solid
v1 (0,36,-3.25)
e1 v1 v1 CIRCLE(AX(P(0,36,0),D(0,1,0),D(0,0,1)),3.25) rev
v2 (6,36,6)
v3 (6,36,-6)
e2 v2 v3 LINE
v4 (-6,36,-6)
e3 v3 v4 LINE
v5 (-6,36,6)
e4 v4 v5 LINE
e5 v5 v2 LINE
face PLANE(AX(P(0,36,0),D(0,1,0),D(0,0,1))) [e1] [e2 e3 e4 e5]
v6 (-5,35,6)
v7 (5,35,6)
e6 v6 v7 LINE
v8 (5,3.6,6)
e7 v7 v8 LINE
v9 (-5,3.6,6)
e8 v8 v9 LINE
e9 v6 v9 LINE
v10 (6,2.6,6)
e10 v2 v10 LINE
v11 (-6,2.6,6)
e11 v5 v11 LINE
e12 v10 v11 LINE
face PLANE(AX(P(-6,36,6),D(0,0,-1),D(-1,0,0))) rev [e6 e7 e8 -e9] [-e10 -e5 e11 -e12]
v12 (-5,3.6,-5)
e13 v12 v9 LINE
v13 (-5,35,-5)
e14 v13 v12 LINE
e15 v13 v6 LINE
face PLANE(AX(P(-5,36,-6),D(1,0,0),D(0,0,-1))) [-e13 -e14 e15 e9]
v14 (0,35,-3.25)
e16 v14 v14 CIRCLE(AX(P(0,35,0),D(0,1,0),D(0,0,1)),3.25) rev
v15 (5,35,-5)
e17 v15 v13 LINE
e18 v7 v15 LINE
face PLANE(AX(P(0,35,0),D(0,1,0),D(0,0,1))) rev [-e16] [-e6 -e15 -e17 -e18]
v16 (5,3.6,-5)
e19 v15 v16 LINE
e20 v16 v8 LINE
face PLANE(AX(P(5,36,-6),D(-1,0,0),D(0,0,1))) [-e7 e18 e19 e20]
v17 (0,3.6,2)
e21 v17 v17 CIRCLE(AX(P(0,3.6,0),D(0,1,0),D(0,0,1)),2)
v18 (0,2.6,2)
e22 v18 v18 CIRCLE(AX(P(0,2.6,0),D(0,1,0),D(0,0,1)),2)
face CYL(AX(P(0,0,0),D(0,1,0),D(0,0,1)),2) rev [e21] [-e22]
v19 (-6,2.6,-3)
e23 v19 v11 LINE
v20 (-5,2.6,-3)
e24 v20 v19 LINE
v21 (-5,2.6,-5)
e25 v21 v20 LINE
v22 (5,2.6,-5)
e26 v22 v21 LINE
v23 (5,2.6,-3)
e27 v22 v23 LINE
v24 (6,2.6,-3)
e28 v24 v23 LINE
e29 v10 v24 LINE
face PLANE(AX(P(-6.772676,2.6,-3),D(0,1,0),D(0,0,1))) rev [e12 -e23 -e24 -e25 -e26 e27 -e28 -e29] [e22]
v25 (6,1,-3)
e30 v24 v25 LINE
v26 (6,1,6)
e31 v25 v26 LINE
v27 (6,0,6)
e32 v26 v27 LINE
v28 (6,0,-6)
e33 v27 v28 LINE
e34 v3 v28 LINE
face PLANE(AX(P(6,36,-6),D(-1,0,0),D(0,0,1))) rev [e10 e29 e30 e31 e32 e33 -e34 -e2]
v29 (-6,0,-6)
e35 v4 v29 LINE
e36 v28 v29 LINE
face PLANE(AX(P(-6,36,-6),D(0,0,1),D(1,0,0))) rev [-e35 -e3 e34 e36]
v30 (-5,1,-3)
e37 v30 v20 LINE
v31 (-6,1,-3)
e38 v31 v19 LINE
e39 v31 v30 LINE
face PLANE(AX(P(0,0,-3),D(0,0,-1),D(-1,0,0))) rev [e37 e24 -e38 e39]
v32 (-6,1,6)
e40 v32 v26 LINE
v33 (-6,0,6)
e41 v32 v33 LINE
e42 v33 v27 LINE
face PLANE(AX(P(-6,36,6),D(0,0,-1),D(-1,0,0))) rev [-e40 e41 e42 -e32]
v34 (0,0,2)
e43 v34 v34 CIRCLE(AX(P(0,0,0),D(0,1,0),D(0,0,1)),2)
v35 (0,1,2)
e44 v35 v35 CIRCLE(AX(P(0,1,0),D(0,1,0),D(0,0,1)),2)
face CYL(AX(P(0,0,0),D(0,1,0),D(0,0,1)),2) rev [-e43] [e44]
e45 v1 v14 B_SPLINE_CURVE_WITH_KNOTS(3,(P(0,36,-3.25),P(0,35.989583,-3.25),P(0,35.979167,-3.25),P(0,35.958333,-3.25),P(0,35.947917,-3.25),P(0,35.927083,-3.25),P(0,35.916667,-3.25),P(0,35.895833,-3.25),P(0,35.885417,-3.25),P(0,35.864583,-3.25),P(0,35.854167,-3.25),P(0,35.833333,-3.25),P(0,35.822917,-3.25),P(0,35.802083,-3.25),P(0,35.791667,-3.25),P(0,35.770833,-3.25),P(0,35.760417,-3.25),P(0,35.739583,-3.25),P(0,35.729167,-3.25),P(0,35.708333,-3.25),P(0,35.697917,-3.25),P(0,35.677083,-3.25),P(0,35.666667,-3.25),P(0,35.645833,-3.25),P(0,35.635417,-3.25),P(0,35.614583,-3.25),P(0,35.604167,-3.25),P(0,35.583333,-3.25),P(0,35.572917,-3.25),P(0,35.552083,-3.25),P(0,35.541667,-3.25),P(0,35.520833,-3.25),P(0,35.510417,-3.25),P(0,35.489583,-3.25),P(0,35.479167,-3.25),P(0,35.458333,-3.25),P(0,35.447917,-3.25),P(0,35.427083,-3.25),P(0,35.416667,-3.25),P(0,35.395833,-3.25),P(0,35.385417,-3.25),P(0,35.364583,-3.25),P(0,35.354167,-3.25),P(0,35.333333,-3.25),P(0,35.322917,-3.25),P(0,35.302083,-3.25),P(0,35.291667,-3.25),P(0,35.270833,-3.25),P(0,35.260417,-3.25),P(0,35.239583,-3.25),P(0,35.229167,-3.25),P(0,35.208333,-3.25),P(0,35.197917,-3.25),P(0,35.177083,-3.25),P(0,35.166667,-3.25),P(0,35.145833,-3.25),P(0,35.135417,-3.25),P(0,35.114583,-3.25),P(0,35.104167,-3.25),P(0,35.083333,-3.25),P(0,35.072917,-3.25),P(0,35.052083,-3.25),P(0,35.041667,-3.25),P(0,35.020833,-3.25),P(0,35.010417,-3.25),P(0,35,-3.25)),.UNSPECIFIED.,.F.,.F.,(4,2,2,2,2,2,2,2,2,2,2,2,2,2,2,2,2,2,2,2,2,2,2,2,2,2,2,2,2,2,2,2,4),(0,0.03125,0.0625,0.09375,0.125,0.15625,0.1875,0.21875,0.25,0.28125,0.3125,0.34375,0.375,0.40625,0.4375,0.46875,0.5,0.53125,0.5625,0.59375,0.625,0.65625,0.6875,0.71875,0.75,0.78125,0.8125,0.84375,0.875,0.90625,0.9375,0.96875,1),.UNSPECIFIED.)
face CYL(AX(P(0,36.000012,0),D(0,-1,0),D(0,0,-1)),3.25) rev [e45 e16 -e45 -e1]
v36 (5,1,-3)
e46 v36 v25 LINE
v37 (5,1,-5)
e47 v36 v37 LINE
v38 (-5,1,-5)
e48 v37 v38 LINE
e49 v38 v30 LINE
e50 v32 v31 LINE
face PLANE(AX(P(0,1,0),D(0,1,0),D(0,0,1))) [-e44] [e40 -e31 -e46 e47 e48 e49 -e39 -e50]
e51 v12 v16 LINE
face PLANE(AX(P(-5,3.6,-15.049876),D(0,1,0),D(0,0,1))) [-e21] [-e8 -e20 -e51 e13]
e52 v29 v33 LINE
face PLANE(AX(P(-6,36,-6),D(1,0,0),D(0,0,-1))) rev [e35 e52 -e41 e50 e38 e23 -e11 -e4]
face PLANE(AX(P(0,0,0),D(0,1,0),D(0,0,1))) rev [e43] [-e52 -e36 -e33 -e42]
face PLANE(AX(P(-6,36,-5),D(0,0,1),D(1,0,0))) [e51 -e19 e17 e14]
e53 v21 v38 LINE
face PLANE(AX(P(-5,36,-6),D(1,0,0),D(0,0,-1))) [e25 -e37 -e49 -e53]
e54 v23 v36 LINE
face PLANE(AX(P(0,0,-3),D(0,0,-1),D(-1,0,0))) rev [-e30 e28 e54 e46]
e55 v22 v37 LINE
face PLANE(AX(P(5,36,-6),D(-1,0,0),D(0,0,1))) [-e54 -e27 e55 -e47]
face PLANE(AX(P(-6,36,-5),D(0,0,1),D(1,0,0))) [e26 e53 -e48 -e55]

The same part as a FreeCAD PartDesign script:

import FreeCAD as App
import Part
import Sketcher


def faces_at(feature, points):
    """Names of the faces that lie closest to the given points."""
    faces = feature.Shape.Faces
    near = lambda p: min(range(len(faces)), key=lambda i: faces[i].distToShape(Part.Vertex(*p))[0])
    return sorted({f"Face{near(p) + 1}" for p in points})


def add_polygon(sketch, points):
    """Adds a closed chain of lines whose ends are joined by coincident constraints."""
    first, n = sketch.GeometryCount, len(points)
    for a, b in zip(points, points[1:] + points[:1]):
        sketch.addGeometry(Part.LineSegment(App.Vector(*a, 0), App.Vector(*b, 0)), False)
    for i in range(n):
        sketch.addConstraint(Sketcher.Constraint("Coincident", first + i, 2, first + (i + 1) % n, 1))

doc = App.newDocument("Part")
body = doc.addObject("PartDesign::Body", "Body")

sketch1 = doc.addObject("Sketcher::SketchObject", "Sketch")
body.addObject(sketch1)
sketch1.AttachmentSupport = (doc.XZ_Plane, [""])
sketch1.MapMode = "FlatFace"
add_polygon(sketch1, [(-6, -6), (-6, 6), (6, 6), (6, -6)])
sketch1.addConstraint(Sketcher.Constraint("Vertical", 0))
sketch1.addConstraint(Sketcher.Constraint("Horizontal", 1))
sketch1.addConstraint(Sketcher.Constraint("Vertical", 2))
sketch1.addConstraint(Sketcher.Constraint("Horizontal", 3))
sketch1.addConstraint(Sketcher.Constraint("Symmetric", 0, 2, 2, 2, -1, 1))
sketch1.addConstraint(Sketcher.Constraint("Equal", 3, 0))
sketch1.addConstraint(Sketcher.Constraint("DistanceX", 1, 1, 1, 2, 12.0))
pad1 = doc.addObject("PartDesign::Pad", "Pad")
body.addObject(pad1)
pad1.Profile = sketch1
pad1.Length = 36
pad1.Reversed = True
doc.recompute()

thickness = doc.addObject("PartDesign::Thickness", "Thickness")
body.addObject(thickness)
thickness.Base = (pad1, faces_at(pad1, [(0, 18, 6)]))
thickness.Value = 1
thickness.Reversed = True
thickness.Join = "Intersection"

sketch2 = doc.addObject("Sketcher::SketchObject", "Sketch001")
body.addObject(sketch2)
sketch2.AttachmentSupport = (doc.XZ_Plane, [""])
sketch2.MapMode = "FlatFace"
sketch2.AttachmentOffset = App.Placement(App.Vector(0, 0, -36), App.Rotation())
sketch2.addGeometry(Part.Circle(App.Vector(0, 0, 0), App.Vector(0, 0, 1), 3.2), False)
sketch2.addConstraint(Sketcher.Constraint("Coincident", 0, 3, -1, 1))
sketch2.addConstraint(Sketcher.Constraint("Diameter", 0, 6.5))
pocket1 = doc.addObject("PartDesign::Pocket", "Pocket")
body.addObject(pocket1)
pocket1.Profile = sketch2
pocket1.Type = "TwoLengths"
pocket1.Length = 37.986484
pocket1.Length2 = 3

sketch3 = doc.addObject("Sketcher::SketchObject", "Sketch002")
body.addObject(sketch3)
sketch3.AttachmentSupport = (doc.XY_Plane, [""])
sketch3.MapMode = "FlatFace"
sketch3.AttachmentOffset = App.Placement(App.Vector(0, 0, 6), App.Rotation())
add_polygon(sketch3, [(-6.8, 2.6), (-6.8, 1), (6.9, 1), (6.9, 2.6)])
sketch3.addConstraint(Sketcher.Constraint("Vertical", 0))
sketch3.addConstraint(Sketcher.Constraint("Horizontal", 1))
sketch3.addConstraint(Sketcher.Constraint("Vertical", 2))
sketch3.addConstraint(Sketcher.Constraint("Horizontal", 3))
sketch3.addConstraint(Sketcher.Constraint("DistanceY", 0, 2, 0, 1, 1.6))
sketch3.addConstraint(Sketcher.Constraint("DistanceY", -1, 1, 0, 2, 1.0))
sketch3.addConstraint(Sketcher.Constraint("DistanceX", 1, 1, 1, 2, 13.652856))
sketch3.addConstraint(Sketcher.Constraint("DistanceX", -1, 1, 1, 2, 6.880179))
pocket2 = doc.addObject("PartDesign::Pocket", "Pocket001")
body.addObject(pocket2)
pocket2.Profile = sketch3
pocket2.Length = 9

sketch4 = doc.addObject("Sketcher::SketchObject", "Sketch003")
body.addObject(sketch4)
sketch4.AttachmentSupport = (doc.XY_Plane, [""])
sketch4.MapMode = "FlatFace"
sketch4.AttachmentOffset = App.Placement(App.Vector(0, 0, 6), App.Rotation())
add_polygon(sketch4, [(-5, 3.6), (-5, 2.6), (5, 2.6), (5, 3.6)])
sketch4.addConstraint(Sketcher.Constraint("Vertical", 0))
sketch4.addConstraint(Sketcher.Constraint("Horizontal", 1))
sketch4.addConstraint(Sketcher.Constraint("Vertical", 2))
sketch4.addConstraint(Sketcher.Constraint("Horizontal", 3))
sketch4.addConstraint(Sketcher.Constraint("DistanceX", 1, 1, 1, 2, 10.0))
sketch4.addConstraint(Sketcher.Constraint("DistanceY", 0, 2, 0, 1, 1.0))
sketch4.addConstraint(Sketcher.Constraint("DistanceX", 0, 2, -1, 1, 5.0))
sketch4.addConstraint(Sketcher.Constraint("DistanceY", -1, 1, 0, 2, 2.6))
pad2 = doc.addObject("PartDesign::Pad", "Pad001")
body.addObject(pad2)
pad2.Profile = sketch4
pad2.Length = 11
pad2.Reversed = True

sketch5 = doc.addObject("Sketcher::SketchObject", "Sketch004")
body.addObject(sketch5)
sketch5.AttachmentSupport = (doc.XZ_Plane, [""])
sketch5.MapMode = "FlatFace"
sketch5.AttachmentOffset = App.Placement(App.Vector(0, 0, -36), App.Rotation())
sketch5.addGeometry(Part.Circle(App.Vector(0, 0, 0), App.Vector(0, 0, 1), 2), False)
sketch5.addConstraint(Sketcher.Constraint("Coincident", 0, 3, -1, 1))
sketch5.addConstraint(Sketcher.Constraint("Diameter", 0, 4.0))
pocket3 = doc.addObject("PartDesign::Pocket", "Pocket002")
body.addObject(pocket3)
pocket3.Profile = sketch5
pocket3.Type = "ThroughAll"
pocket3.Reversed = True

doc.recompute()
